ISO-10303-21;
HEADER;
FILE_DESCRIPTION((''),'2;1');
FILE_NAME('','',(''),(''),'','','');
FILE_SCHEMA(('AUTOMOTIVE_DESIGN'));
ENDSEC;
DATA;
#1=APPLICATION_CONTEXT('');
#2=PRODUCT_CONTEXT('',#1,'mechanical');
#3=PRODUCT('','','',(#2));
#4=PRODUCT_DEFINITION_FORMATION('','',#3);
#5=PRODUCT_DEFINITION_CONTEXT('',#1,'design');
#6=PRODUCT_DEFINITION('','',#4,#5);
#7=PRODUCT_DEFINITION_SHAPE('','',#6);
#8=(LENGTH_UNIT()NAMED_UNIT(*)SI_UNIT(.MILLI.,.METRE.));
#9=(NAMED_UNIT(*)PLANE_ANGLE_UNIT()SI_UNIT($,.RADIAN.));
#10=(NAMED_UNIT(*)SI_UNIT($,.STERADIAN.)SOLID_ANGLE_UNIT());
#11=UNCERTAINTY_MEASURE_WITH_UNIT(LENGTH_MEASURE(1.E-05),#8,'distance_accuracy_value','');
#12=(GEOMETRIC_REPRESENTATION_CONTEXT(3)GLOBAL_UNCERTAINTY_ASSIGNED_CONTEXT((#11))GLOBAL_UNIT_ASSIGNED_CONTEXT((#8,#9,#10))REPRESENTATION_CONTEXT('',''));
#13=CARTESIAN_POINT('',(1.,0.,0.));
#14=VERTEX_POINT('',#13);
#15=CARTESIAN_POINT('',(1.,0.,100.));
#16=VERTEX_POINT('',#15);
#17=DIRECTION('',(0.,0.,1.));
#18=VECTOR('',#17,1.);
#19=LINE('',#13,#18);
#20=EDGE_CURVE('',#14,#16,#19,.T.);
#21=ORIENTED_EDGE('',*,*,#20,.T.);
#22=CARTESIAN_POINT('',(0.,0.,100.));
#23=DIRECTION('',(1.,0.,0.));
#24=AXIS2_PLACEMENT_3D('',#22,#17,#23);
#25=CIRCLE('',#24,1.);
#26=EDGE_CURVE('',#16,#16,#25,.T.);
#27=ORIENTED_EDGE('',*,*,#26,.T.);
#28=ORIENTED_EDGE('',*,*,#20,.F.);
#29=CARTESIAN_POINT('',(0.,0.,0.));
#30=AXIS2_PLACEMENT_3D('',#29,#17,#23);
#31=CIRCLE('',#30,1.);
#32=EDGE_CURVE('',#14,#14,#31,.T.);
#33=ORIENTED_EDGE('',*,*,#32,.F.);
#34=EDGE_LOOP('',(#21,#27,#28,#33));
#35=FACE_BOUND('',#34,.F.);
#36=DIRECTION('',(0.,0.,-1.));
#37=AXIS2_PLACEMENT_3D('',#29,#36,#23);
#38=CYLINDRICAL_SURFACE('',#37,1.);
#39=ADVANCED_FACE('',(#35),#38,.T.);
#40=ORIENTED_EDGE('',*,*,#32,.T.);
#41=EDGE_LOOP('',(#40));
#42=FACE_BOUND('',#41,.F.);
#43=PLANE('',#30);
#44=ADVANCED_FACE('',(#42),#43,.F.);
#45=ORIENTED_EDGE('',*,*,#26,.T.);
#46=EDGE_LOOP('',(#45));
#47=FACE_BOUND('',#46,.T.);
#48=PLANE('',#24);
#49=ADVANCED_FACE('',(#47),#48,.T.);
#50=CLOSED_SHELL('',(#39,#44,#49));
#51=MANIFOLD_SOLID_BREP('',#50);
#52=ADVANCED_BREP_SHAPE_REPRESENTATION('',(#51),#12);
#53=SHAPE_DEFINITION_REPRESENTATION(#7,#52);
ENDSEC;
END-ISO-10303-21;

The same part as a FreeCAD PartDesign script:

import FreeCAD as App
import Part
import Sketcher

doc = App.newDocument("Part")
body = doc.addObject("PartDesign::Body", "Body")

# Sketch on XY plane
sketch1 = body.newObject("Sketcher::SketchObject", "Sketch")
sketch1.AttachmentSupport = (doc.getObject("XY_Plane"), [""])
sketch1.MapMode = "FlatFace"
sketch1.addGeometry(Part.Circle(App.Vector(0, 0, 0), App.Vector(0, 0, 1), 1), False)
sketch1.addConstraint([
    Sketcher.Constraint("Coincident", 0, 3, -1, 1),
    Sketcher.Constraint("Diameter", 0, 2.0),
])
pad1 = body.newObject("PartDesign::Pad", "Pad")
pad1.Profile = sketch1
pad1.Length = 100

doc.recompute()
